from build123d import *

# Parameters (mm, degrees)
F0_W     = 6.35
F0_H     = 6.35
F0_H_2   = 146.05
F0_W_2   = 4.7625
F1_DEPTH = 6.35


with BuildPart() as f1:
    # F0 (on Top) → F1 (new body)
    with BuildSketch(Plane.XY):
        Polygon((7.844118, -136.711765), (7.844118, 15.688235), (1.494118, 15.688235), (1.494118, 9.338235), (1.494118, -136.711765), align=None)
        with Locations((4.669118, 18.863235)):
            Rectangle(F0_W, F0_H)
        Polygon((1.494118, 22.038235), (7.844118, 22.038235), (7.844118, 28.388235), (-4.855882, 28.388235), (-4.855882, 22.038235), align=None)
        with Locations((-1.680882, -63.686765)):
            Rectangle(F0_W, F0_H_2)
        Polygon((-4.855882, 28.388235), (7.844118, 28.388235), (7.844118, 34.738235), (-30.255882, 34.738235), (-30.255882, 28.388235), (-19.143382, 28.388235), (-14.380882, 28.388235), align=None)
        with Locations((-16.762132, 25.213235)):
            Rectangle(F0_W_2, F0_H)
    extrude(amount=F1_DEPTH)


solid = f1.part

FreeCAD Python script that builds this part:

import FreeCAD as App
import Part
import Sketcher
Q = App.Units.Quantity

doc = App.newDocument("Part")
body = doc.addObject("PartDesign::Body", "Body")

# Sketch on XY plane
sketch1 = body.newObject("Sketcher::SketchObject", "Sketch")
sketch1.AttachmentSupport = (doc.getObject("XY_Plane"), [""])
sketch1.MapMode = "FlatFace"
sketch1.addGeometry([
    Part.LineSegment(App.Vector(7.8, -136.7, 0), App.Vector(7.8, 34.7, 0)),  # 0
    Part.LineSegment(App.Vector(7.8, 34.7, 0), App.Vector(-30.3, 34.7, 0)),  # 1
    Part.LineSegment(App.Vector(-30.3, 34.7, 0), App.Vector(-30.3, 28.4, 0)),  # 2
    Part.LineSegment(App.Vector(-30.3, 28.4, 0), App.Vector(-19.1, 28.4, 0)),  # 3
    Part.LineSegment(App.Vector(-19.1, 28.4, 0), App.Vector(-19.1, 22, 0)),  # 4
    Part.LineSegment(App.Vector(-19.1, 22, 0), App.Vector(-14.4, 22, 0)),  # 5
    Part.LineSegment(App.Vector(-14.4, 22, 0), App.Vector(-14.4, 28.4, 0)),  # 6
    Part.LineSegment(App.Vector(-14.4, 28.4, 0), App.Vector(-4.9, 28.4, 0)),  # 7
    Part.LineSegment(App.Vector(-4.9, 28.4, 0), App.Vector(-4.9, 22, 0)),  # 8
    Part.LineSegment(App.Vector(-4.9, 22, 0), App.Vector(1.5, 22, 0)),  # 9
    Part.LineSegment(App.Vector(1.5, 22, 0), App.Vector(1.5, 9.3, 0)),  # 10
    Part.LineSegment(App.Vector(1.5, 9.3, 0), App.Vector(-4.9, 9.3, 0)),  # 11
    Part.LineSegment(App.Vector(-4.9, 9.3, 0), App.Vector(-4.9, -136.7, 0)),  # 12
    Part.LineSegment(App.Vector(-4.9, -136.7, 0), App.Vector(7.8, -136.7, 0)),  # 13
], False)
sketch1.addConstraint([
    Sketcher.Constraint("Coincident", 0, 2, 1, 1),
    Sketcher.Constraint("Coincident", 1, 2, 2, 1),
    Sketcher.Constraint("Coincident", 2, 2, 3, 1),
    Sketcher.Constraint("Coincident", 3, 2, 4, 1),
    Sketcher.Constraint("Coincident", 4, 2, 5, 1),
    Sketcher.Constraint("Coincident", 5, 2, 6, 1),
    Sketcher.Constraint("Coincident", 6, 2, 7, 1),
    Sketcher.Constraint("Coincident", 7, 2, 8, 1),
    Sketcher.Constraint("Coincident", 8, 2, 9, 1),
    Sketcher.Constraint("Coincident", 9, 2, 10, 1),
    Sketcher.Constraint("Coincident", 10, 2, 11, 1),
    Sketcher.Constraint("Coincident", 11, 2, 12, 1),
    Sketcher.Constraint("Coincident", 12, 2, 13, 1),
    Sketcher.Constraint("Coincident", 13, 2, 0, 1),
    Sketcher.Constraint("Vertical", 0),
    Sketcher.Constraint("Horizontal", 1),
    Sketcher.Constraint("Vertical", 2),
    Sketcher.Constraint("Horizontal", 3),
    Sketcher.Constraint("Vertical", 4),
    Sketcher.Constraint("Horizontal", 5),
    Sketcher.Constraint("Vertical", 6),
    Sketcher.Constraint("Horizontal", 7),
    Sketcher.Constraint("Vertical", 8),
    Sketcher.Constraint("Horizontal", 9),
    Sketcher.Constraint("Vertical", 10),
    Sketcher.Constraint("Horizontal", 11),
    Sketcher.Constraint("Vertical", 12),
    Sketcher.Constraint("Horizontal", 13),
    Sketcher.Constraint("Horizontal", 3, 2, 6, 2),
    Sketcher.Constraint("Horizontal", 5, 2, 8, 2),
    Sketcher.Constraint("Vertical", 8, 2, 11, 2),
    Sketcher.Constraint("Equal", 11, 2),
    Sketcher.Constraint("Equal", 2, 4),
    Sketcher.Constraint("Equal", 13, 10),
    Sketcher.Constraint("DistanceX", 1, 2, 1, 1, Q("1.5 in")),
    Sketcher.Constraint("DistanceX", 13, 1, 13, 2, Q("0.5 in")),
    Sketcher.Constraint("DistanceX", 9, 1, 9, 2, Q("0.25 in")),
    Sketcher.Constraint("DistanceY", 0, 1, 0, 2, Q("6.75 in")),
    Sketcher.Constraint("DistanceX", 3, 1, 3, 2, Q("0.4375 in")),
    Sketcher.Constraint("DistanceX", 5, 1, 5, 2, Q("0.1875 in")),
    Sketcher.Constraint("DistanceX", 1, 2, -1, 1, 30.255882),
    Sketcher.Constraint("DistanceY", -1, 1, 0, 2, 34.738235),
])
pad1 = body.newObject("PartDesign::Pad", "Pad")
pad1.Profile = sketch1
pad1.Length = Q("0.25 in")

doc.recompute()
